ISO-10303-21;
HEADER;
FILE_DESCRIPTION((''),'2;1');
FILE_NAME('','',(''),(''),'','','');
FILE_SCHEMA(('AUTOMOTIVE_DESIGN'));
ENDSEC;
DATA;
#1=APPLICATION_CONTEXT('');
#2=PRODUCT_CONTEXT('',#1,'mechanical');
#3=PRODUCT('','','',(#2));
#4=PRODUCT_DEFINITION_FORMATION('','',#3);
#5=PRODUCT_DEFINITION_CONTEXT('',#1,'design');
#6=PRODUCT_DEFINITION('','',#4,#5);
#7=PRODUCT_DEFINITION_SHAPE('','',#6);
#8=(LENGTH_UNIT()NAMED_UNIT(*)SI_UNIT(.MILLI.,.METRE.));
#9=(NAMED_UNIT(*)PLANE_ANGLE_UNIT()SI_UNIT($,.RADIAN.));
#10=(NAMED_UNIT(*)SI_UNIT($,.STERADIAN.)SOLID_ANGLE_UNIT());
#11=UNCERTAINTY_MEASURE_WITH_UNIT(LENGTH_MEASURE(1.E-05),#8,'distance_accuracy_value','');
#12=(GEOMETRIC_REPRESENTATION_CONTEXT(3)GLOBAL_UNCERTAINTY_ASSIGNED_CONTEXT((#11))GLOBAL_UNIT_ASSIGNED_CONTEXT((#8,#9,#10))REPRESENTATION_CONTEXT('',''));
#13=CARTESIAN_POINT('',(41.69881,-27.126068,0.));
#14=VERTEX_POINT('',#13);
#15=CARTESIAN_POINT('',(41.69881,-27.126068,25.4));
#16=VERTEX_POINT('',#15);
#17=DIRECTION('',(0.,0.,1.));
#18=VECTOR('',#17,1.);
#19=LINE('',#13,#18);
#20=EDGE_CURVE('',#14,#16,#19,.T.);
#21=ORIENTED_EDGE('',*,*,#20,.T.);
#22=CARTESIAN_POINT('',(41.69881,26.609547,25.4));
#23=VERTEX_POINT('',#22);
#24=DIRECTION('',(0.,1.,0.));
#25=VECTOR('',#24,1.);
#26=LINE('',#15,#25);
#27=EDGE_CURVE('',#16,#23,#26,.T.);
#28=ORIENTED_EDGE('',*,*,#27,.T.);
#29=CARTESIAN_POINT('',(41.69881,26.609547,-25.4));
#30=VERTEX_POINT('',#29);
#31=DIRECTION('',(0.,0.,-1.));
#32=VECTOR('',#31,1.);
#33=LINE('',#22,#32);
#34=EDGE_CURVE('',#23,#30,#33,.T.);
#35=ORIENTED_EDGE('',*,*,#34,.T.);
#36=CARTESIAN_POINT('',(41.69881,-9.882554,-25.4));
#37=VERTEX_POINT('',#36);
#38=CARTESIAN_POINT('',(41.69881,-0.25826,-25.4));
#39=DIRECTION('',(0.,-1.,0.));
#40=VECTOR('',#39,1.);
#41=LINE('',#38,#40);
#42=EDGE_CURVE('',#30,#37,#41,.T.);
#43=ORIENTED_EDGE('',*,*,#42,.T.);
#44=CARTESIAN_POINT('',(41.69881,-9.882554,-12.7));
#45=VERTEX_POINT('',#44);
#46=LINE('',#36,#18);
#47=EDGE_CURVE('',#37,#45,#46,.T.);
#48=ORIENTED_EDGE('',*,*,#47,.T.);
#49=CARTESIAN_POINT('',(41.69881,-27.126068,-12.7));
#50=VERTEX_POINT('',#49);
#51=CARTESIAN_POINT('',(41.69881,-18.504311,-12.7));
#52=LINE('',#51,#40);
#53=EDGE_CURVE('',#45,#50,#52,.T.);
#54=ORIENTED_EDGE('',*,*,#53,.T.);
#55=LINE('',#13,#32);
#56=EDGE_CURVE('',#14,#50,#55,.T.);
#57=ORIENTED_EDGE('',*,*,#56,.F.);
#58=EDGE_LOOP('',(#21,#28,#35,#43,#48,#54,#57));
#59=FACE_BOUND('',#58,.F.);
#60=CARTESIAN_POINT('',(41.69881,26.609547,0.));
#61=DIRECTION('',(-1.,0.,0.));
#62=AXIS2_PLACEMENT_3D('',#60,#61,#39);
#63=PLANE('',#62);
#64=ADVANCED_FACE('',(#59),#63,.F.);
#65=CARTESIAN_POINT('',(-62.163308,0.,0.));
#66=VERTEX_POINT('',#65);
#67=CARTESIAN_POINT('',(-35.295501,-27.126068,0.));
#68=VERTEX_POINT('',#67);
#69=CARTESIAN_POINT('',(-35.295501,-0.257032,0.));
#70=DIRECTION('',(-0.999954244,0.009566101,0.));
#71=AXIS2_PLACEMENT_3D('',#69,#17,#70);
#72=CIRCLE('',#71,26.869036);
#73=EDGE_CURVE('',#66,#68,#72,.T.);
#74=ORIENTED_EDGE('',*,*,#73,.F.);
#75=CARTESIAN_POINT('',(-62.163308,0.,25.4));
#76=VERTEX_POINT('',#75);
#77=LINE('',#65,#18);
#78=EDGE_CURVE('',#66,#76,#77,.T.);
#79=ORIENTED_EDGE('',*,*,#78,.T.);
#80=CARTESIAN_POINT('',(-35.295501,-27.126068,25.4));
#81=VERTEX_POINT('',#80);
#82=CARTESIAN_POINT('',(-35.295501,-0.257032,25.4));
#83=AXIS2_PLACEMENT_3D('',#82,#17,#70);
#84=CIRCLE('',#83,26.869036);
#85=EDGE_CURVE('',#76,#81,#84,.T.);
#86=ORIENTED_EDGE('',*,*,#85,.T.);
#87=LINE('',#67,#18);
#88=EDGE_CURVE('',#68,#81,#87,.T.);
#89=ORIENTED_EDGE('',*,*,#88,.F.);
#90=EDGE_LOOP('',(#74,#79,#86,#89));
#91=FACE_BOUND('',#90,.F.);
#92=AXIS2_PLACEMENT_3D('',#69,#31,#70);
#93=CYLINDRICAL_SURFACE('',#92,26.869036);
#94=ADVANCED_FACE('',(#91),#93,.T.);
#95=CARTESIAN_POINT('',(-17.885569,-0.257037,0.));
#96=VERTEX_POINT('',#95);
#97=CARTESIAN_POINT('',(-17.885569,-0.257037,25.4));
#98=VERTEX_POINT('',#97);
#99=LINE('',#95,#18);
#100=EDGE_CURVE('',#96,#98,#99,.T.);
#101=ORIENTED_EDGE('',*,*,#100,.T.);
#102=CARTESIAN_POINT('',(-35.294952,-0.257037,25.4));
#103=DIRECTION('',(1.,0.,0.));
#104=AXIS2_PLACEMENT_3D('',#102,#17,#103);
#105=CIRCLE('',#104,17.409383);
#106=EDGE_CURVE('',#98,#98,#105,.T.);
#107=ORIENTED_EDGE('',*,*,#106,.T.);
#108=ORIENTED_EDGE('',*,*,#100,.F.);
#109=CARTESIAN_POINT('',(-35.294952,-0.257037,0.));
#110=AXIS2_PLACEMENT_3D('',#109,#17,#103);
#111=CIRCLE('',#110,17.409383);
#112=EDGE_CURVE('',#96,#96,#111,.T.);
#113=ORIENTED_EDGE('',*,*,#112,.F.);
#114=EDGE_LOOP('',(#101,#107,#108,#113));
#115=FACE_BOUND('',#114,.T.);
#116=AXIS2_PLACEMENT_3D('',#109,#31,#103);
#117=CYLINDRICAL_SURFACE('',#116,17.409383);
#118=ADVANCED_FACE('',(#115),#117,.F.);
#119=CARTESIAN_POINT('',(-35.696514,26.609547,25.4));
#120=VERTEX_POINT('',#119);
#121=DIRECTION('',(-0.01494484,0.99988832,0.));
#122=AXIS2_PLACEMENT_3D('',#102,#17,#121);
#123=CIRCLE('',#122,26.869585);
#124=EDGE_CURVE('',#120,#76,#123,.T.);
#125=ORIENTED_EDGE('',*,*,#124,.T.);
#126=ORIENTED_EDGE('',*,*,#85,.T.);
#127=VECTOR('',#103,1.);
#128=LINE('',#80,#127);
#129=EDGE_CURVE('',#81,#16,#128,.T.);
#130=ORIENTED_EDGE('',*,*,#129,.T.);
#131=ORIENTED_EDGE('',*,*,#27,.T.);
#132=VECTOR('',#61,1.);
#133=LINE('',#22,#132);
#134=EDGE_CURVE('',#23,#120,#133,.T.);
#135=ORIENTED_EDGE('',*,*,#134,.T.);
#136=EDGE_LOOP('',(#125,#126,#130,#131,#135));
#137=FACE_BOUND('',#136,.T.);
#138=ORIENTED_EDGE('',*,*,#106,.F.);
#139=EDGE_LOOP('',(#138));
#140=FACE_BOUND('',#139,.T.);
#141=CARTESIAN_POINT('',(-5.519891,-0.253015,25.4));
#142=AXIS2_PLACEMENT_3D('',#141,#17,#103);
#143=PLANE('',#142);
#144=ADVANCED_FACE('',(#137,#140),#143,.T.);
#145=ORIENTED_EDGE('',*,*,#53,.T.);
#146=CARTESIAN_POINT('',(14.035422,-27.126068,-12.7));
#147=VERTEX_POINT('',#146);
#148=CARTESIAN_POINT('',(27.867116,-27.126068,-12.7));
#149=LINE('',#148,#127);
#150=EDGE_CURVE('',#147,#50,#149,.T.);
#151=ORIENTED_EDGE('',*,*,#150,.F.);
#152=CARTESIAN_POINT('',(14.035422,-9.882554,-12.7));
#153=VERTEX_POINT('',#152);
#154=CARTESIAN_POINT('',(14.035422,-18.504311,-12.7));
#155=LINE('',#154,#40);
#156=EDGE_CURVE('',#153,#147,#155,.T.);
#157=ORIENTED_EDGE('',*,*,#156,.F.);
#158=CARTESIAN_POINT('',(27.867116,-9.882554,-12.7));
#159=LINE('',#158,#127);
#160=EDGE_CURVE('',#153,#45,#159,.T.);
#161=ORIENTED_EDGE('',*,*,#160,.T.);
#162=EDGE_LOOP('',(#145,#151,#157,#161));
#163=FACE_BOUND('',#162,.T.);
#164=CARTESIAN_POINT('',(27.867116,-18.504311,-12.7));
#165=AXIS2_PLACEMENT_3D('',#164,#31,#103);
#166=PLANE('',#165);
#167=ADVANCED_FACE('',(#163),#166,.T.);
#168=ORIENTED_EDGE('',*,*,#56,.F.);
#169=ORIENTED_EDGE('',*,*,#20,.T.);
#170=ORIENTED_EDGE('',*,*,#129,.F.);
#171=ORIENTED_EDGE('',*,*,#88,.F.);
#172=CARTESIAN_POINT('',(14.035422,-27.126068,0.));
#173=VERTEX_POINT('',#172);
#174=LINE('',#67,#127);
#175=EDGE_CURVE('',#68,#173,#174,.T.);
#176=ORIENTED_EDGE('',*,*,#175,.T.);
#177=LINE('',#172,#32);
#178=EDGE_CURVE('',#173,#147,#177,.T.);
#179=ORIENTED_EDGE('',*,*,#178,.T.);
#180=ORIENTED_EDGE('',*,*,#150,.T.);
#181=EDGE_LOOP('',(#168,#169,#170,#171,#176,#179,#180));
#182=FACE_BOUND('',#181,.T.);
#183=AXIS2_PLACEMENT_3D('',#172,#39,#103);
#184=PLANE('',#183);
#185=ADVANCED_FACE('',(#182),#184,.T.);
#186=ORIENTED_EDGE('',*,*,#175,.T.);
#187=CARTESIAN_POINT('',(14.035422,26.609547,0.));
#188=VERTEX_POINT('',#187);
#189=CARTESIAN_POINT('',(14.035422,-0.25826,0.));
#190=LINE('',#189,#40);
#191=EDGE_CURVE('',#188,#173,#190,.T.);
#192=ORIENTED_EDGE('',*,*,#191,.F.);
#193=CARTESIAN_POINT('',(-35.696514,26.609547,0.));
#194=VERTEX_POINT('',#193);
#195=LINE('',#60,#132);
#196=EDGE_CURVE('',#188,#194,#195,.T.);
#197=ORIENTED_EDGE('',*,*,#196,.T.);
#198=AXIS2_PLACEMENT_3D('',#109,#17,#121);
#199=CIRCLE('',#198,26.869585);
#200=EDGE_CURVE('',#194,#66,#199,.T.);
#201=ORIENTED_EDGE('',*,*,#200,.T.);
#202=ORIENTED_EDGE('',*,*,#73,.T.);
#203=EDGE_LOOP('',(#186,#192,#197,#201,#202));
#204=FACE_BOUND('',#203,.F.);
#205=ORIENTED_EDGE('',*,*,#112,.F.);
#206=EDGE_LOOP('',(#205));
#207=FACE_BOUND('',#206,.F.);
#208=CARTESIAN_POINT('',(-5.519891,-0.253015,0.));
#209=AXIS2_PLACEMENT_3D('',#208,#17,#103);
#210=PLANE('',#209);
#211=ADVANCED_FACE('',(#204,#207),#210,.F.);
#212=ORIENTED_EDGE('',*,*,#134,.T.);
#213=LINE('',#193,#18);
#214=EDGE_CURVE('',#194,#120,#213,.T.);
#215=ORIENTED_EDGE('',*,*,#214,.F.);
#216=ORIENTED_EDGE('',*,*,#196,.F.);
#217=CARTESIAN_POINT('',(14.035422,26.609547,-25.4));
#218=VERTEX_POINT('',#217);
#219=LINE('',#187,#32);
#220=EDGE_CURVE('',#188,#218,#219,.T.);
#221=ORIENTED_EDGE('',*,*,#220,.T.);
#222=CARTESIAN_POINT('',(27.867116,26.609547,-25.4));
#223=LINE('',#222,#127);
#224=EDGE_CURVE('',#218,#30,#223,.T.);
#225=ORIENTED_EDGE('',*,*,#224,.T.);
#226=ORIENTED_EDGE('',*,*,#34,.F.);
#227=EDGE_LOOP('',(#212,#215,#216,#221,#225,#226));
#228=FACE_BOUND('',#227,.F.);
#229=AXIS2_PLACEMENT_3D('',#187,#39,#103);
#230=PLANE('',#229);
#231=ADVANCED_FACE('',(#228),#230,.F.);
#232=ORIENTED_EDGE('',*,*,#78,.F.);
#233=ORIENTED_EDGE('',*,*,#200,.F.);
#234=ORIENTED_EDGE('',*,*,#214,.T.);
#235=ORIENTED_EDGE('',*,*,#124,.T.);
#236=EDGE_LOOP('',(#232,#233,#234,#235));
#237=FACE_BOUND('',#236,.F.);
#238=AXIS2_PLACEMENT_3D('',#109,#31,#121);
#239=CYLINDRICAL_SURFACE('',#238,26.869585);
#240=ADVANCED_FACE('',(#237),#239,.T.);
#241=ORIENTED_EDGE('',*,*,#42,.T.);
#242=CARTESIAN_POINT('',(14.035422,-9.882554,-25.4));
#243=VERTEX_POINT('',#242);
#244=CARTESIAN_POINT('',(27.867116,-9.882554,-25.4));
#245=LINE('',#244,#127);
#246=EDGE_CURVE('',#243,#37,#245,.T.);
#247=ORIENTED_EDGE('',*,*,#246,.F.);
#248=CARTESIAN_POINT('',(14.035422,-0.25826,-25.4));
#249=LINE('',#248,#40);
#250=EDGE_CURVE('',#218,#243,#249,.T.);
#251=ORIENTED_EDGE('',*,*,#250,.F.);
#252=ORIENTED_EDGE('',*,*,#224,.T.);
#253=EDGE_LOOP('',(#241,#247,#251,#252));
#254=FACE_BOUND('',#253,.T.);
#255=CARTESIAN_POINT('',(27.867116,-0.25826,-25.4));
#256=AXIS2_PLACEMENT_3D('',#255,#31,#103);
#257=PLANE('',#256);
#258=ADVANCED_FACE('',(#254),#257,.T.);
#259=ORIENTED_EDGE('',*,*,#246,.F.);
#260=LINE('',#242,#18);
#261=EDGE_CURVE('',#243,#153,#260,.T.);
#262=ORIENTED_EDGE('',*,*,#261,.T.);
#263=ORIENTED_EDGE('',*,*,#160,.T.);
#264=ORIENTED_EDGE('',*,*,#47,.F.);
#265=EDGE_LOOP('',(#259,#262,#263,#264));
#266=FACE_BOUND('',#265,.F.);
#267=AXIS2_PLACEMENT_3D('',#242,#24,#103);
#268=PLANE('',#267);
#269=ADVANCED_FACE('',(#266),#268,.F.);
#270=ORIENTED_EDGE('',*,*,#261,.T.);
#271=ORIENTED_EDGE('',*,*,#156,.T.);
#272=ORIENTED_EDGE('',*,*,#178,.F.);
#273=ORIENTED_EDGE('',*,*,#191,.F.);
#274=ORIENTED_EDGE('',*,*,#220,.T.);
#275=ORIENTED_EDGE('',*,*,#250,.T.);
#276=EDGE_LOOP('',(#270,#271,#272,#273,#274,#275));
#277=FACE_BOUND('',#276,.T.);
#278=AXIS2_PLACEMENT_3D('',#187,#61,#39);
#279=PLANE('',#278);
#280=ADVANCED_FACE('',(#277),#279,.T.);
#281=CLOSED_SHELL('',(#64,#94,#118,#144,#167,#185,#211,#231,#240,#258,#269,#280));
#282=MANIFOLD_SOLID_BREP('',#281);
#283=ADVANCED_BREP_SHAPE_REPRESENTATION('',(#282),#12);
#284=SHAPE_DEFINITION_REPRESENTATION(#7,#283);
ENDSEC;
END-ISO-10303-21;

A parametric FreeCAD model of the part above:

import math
import FreeCAD as App
import Part
import Sketcher
from FreeCAD import Vector
Q = App.Units.Quantity


def add_polygon(sketch, points):
    """Adds a closed chain of lines whose ends are joined by coincident constraints."""
    first, n = sketch.GeometryCount, len(points)
    for a, b in zip(points, points[1:] + points[:1]):
        sketch.addGeometry(Part.LineSegment(App.Vector(*a, 0), App.Vector(*b, 0)), False)
    for i in range(n):
        sketch.addConstraint(Sketcher.Constraint("Coincident", first + i, 2, first + (i + 1) % n, 1))

doc = App.newDocument("Part")
body = doc.addObject("PartDesign::Body", "Body")

# Sketch on XY plane
sketch1 = body.newObject("Sketcher::SketchObject", "Sketch")
sketch1.AttachmentSupport = (doc.getObject("XY_Plane"), [""])
sketch1.MapMode = "FlatFace"
sketch1.addGeometry(Part.ArcOfCircle(Part.Circle(Vector(-35, 0, 0), Vector(0, 0, 1), 27), math.radians(179), math.radians(270)), False)
sketch1.addGeometry(Part.LineSegment(Vector(-35, -27, 0), Vector(42, -27, 0)), False)
sketch1.addGeometry(Part.LineSegment(Vector(42, -27, 0), Vector(42, 27, 0)), False)
sketch1.addGeometry(Part.LineSegment(Vector(42, 27, 0), Vector(-36, 27, 0)), False)
sketch1.addGeometry(Part.ArcOfCircle(Part.Circle(Vector(-35, 0, 0), Vector(0, 0, 1), 27), math.radians(91), math.radians(179)), False)
sketch1.addGeometry(Part.Circle(Vector(-35, 0, 0), Vector(0, 0, 1), 17), False)
sketch1.addConstraint(Sketcher.Constraint("Tangent", 0, 2, 1, 1))
sketch1.addConstraint(Sketcher.Constraint("Coincident", 1, 2, 2, 1))
sketch1.addConstraint(Sketcher.Constraint("Coincident", 2, 2, 3, 1))
sketch1.addConstraint(Sketcher.Constraint("Coincident", 3, 2, 4, 1))
sketch1.addConstraint(Sketcher.Constraint("Tangent", 4, 2, 0, 1))
sketch1.addConstraint(Sketcher.Constraint("Horizontal", 1))
sketch1.addConstraint(Sketcher.Constraint("Vertical", 2))
sketch1.addConstraint(Sketcher.Constraint("Horizontal", 3))
sketch1.addConstraint(Sketcher.Constraint("Coincident", 5, 3, 4, 3))
sketch1.addConstraint(Sketcher.Constraint("PointOnObject", 4, 2, -1))
sketch1.addConstraint(Sketcher.Constraint("Diameter", 5, 34.818766))
sketch1.addConstraint(Sketcher.Constraint("Radius", 0, 26.869036))
sketch1.addConstraint(Sketcher.Constraint("Radius", 4, 26.869585))
sketch1.addConstraint(Sketcher.Constraint("DistanceX", 1, 1, 1, 2, 76.994311))
sketch1.addConstraint(Sketcher.Constraint("DistanceX", 0, 3, -1, 1, 35.295501))
sketch1.addConstraint(Sketcher.Constraint("DistanceX", 3, 2, 3, 1, 77.395324))
sketch1.addConstraint(Sketcher.Constraint("DistanceY", 0, 3, -1, 1, 0.257032))
pad1 = body.newObject("PartDesign::Pad", "Pad")
pad1.Profile = sketch1
pad1.Length = Q("1 in")

# Sketch on XY plane
sketch2 = body.newObject("Sketcher::SketchObject", "Sketch001")
sketch2.AttachmentSupport = (doc.getObject("XY_Plane"), [""])
sketch2.MapMode = "FlatFace"
add_polygon(sketch2, [(14, -27), (14, 27), (42, 27), (42, -27)])  # lines 0-3
sketch2.addConstraint(Sketcher.Constraint("Vertical", 0))
sketch2.addConstraint(Sketcher.Constraint("Horizontal", 1))
sketch2.addConstraint(Sketcher.Constraint("Vertical", 2))
sketch2.addConstraint(Sketcher.Constraint("Horizontal", 3))
sketch2.addConstraint(Sketcher.Constraint("DistanceX", 1, 1, 1, 2, 27.663387))
sketch2.addConstraint(Sketcher.Constraint("DistanceY", 0, 1, 0, 2, 53.735616))
sketch2.addConstraint(Sketcher.Constraint("DistanceX", -1, 1, 1, 2, 41.69881))
sketch2.addConstraint(Sketcher.Constraint("DistanceY", 2, 2, -1, 1, 27.126068))
pad2 = body.newObject("PartDesign::Pad", "Pad001")
pad2.Profile = sketch2
pad2.Length = Q("1 in")
pad2.Reversed = True

# Sketch on XY plane
sketch3 = body.newObject("Sketcher::SketchObject", "Sketch002")
sketch3.AttachmentSupport = (doc.getObject("XY_Plane"), [""])
sketch3.MapMode = "FlatFace"
sketch3.AttachmentOffset = App.Placement(Vector(0, 0, -1 * 25.4), App.Rotation())
add_polygon(sketch3, [(14, -27), (14, -10), (42, -10), (42, -27)])  # lines 0-3
sketch3.addConstraint(Sketcher.Constraint("Vertical", 0))
sketch3.addConstraint(Sketcher.Constraint("Horizontal", 1))
sketch3.addConstraint(Sketcher.Constraint("Vertical", 2))
sketch3.addConstraint(Sketcher.Constraint("Horizontal", 3))
sketch3.addConstraint(Sketcher.Constraint("DistanceX", 1, 1, 1, 2, 27.663387))
sketch3.addConstraint(Sketcher.Constraint("DistanceY", 0, 1, 0, 2, 17.243514))
sketch3.addConstraint(Sketcher.Constraint("DistanceX", -1, 1, 1, 2, 41.69881))
sketch3.addConstraint(Sketcher.Constraint("DistanceY", 2, 2, -1, 1, 27.126068))
pocket1 = body.newObject("PartDesign::Pocket", "Pocket")
pocket1.Profile = sketch3
pocket1.Length = Q("0.5 in")
pocket1.Reversed = True

doc.recompute()
